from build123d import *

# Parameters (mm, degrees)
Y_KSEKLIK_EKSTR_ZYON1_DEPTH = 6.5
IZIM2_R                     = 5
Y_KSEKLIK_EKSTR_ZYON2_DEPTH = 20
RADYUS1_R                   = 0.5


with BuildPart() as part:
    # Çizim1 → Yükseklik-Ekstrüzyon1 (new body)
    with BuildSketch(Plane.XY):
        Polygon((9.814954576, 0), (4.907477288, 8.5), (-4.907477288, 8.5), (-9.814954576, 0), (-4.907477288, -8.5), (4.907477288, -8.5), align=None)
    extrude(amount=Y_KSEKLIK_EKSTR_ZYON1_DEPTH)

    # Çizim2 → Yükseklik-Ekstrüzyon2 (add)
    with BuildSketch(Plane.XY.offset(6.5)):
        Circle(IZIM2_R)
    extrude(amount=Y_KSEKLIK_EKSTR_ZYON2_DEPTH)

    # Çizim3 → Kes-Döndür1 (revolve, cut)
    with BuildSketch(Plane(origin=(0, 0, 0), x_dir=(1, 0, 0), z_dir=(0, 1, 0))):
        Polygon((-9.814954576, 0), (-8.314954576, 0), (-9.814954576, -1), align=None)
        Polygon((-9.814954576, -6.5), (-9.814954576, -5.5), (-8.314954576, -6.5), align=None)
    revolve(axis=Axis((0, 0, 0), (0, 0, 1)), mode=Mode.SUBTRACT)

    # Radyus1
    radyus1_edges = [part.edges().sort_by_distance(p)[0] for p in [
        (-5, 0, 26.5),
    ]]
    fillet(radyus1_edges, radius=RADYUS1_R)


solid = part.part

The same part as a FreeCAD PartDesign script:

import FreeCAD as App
import Part
import Sketcher

V = App.Vector
Q = App.Units.Quantity


def edges_at(feature, points):
    """Names of the edges that pass closest to the given points."""
    edges = feature.Shape.Edges
    near = lambda p: min(range(len(edges)), key=lambda i: edges[i].distToShape(Part.Vertex(*p))[0])
    return sorted({f"Edge{near(p) + 1}" for p in points})


def add_polygon(sketch, points):
    """Adds a closed chain of lines whose ends are joined by coincident constraints."""
    first, n = sketch.GeometryCount, len(points)
    for a, b in zip(points, points[1:] + points[:1]):
        sketch.addGeometry(Part.LineSegment(App.Vector(*a, 0), App.Vector(*b, 0)), False)
    for i in range(n):
        sketch.addConstraint(Sketcher.Constraint("Coincident", first + i, 2, first + (i + 1) % n, 1))

doc = App.newDocument("Part")
body = doc.addObject("PartDesign::Body", "Body")

# Sketch on XY plane
sketch1 = body.newObject("Sketcher::SketchObject", "Sketch")
sketch1.AttachmentSupport = (doc.getObject("XY_Plane"), [""])
sketch1.MapMode = "FlatFace"
add_polygon(sketch1, [(10, 0), (5, 8), (-5, 8), (-10, 0), (-5, -8), (5, -8)])  # lines 0-5
sketch1.addConstraint(Sketcher.Constraint("Horizontal", 1))
sketch1.addConstraint(Sketcher.Constraint("Horizontal", 4))
sketch1.addConstraint(Sketcher.Constraint("Symmetric", 0, 2, 3, 2, -1, 1))
sketch1.addConstraint(Sketcher.Constraint("Symmetric", 2, 2, 5, 2, -1, 1))
sketch1.addConstraint(Sketcher.Constraint("PointOnObject", 2, 2, -1))
sketch1.addConstraint(Sketcher.Constraint("Parallel", 2, 5))
sketch1.addConstraint(Sketcher.Constraint("Vertical", 1, 2, 3, 2))
sketch1.addConstraint(Sketcher.Constraint("Angle", 0, Q("120 deg")))
sketch1.addConstraint(Sketcher.Constraint("DistanceY", 3, 2, 1, 2, 17.0))
sketch1.addConstraint(Sketcher.Constraint("DistanceX", 1, 2, 1, 1, 9.814955))
pad1 = body.newObject("PartDesign::Pad", "Pad")
pad1.Profile = sketch1
pad1.Length = 6.5

# Sketch on XY plane
sketch2 = body.newObject("Sketcher::SketchObject", "Sketch001")
sketch2.AttachmentSupport = (doc.getObject("XY_Plane"), [""])
sketch2.MapMode = "FlatFace"
sketch2.AttachmentOffset = App.Placement(V(0, 0, 6.5), App.Rotation())
sketch2.addGeometry(Part.Circle(V(0, 0, 0), V(0, 0, 1), 5), False)
sketch2.addConstraint(Sketcher.Constraint("Coincident", 0, 3, -1, 1))
sketch2.addConstraint(Sketcher.Constraint("Diameter", 0, 10.0))
pad2 = body.newObject("PartDesign::Pad", "Pad001")
pad2.Profile = sketch2
pad2.Length = 20

# Sketch on XZ plane
sketch3 = body.newObject("Sketcher::SketchObject", "Sketch002")
sketch3.AttachmentSupport = (doc.getObject("XZ_Plane"), [""])
sketch3.MapMode = "FlatFace"
add_polygon(sketch3, [(-8.3, 0), (-9.8, 0), (-9.8, 1)])  # lines 0-2
add_polygon(sketch3, [(-9.8, 5.5), (-9.8, 6.5), (-8.3, 6.5)])  # lines 3-5
sketch3.addConstraint(Sketcher.Constraint("Horizontal", 0))
sketch3.addConstraint(Sketcher.Constraint("Vertical", 1))
sketch3.addConstraint(Sketcher.Constraint("Vertical", 3))
sketch3.addConstraint(Sketcher.Constraint("Horizontal", 4))
sketch3.addConstraint(Sketcher.Constraint("PointOnObject", 0, 2, -1))
sketch3.addConstraint(Sketcher.Constraint("Vertical", 1, 2, 3, 2))
sketch3.addConstraint(Sketcher.Constraint("Vertical", 2, 2, 4, 2))
sketch3.addConstraint(Sketcher.Constraint("Equal", 1, 3))
sketch3.addConstraint(Sketcher.Constraint("DistanceY", 1, 1, 1, 2, 1.0))
sketch3.addConstraint(Sketcher.Constraint("DistanceX", 0, 2, 0, 1, 1.5))
sketch3.addConstraint(Sketcher.Constraint("DistanceY", -1, 1, 3, 2, 6.5))
sketch3.addConstraint(Sketcher.Constraint("DistanceX", 0, 2, -1, 1, 9.814955))
groove = body.newObject("PartDesign::Groove", "Groove")
groove.Profile = sketch3
groove.ReferenceAxis = (sketch3, ["V_Axis"])
groove.Angle = 360
doc.recompute()

fillet = body.newObject("PartDesign::Fillet", "Fillet")
fillet.Base = (groove, edges_at(groove, [(-5, 0, 26.5)]))
fillet.Radius = 0.5

doc.recompute()
